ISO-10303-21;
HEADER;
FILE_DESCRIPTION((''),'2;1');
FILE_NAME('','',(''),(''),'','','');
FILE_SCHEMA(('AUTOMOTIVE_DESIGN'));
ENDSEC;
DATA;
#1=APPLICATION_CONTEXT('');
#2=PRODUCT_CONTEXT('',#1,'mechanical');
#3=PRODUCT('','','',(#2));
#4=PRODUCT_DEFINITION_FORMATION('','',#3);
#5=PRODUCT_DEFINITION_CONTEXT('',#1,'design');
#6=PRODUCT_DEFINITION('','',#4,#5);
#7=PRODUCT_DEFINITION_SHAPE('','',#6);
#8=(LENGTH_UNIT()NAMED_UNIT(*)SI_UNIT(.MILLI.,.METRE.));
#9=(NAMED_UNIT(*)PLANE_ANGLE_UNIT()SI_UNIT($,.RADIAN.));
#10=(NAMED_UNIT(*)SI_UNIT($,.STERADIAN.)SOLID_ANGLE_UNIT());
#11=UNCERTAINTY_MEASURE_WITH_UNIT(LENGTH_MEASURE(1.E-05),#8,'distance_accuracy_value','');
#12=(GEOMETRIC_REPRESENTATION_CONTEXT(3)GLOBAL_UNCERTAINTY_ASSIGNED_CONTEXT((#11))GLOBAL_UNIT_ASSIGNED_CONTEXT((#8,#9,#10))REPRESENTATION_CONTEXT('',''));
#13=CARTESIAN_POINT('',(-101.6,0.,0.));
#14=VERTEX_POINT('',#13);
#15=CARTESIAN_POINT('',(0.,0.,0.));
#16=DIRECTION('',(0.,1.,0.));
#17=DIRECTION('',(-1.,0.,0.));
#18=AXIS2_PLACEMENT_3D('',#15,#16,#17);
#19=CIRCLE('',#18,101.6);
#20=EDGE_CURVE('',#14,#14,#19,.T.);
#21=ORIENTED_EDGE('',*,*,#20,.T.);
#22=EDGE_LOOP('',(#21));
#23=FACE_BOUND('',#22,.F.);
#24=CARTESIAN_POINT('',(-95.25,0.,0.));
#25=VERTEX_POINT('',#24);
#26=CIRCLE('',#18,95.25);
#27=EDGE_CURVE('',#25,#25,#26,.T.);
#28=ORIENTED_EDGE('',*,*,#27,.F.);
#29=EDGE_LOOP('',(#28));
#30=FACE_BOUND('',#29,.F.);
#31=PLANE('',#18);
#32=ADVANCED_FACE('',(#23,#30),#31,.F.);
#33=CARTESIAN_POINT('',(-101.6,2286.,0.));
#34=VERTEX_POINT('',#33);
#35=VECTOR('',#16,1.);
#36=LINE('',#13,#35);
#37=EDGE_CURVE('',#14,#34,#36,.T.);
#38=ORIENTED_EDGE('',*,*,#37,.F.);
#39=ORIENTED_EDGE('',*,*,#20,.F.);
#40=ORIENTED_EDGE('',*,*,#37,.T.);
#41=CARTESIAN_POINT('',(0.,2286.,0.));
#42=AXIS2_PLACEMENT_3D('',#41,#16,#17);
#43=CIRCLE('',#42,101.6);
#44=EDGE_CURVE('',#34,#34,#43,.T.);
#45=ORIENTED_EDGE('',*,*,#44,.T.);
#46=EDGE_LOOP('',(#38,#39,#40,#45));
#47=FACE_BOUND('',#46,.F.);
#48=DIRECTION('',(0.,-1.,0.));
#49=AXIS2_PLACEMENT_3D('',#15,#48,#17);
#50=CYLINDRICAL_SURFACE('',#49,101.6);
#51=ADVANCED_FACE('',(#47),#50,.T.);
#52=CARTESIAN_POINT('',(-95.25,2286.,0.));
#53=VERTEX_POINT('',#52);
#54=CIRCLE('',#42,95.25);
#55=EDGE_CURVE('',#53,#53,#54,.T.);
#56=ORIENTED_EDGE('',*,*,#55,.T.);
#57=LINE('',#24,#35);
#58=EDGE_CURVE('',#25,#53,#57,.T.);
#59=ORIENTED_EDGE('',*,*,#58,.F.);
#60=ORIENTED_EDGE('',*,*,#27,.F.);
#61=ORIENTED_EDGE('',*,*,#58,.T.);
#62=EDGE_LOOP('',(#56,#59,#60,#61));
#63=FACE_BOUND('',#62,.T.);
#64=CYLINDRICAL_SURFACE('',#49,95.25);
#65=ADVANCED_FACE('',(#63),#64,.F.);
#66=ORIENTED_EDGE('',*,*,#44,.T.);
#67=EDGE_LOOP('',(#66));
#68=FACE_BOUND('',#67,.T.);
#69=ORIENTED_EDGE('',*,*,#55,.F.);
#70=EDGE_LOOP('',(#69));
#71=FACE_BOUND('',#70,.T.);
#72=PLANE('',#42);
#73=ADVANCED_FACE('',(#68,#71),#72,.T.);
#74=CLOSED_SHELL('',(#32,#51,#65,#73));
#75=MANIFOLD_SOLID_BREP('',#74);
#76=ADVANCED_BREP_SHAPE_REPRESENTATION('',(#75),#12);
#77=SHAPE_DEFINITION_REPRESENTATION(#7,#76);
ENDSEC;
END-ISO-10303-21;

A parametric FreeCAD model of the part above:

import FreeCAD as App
import Part
import Sketcher
from FreeCAD import Vector
Q = App.Units.Quantity

doc = App.newDocument("Part")
params = doc.addObject("Spreadsheet::Sheet", "Params")
for row, (alias, value) in enumerate([
    ("sketch1_diameter", "8 in"),
    ("sketch1_diameter2", "7.5 in"),
    ("pad1_length", "90 in"),
], start=1):
    params.set(f"A{row}", alias)
    params.set(f"B{row}", "=" + value)
    params.setAlias(f"B{row}", alias)

body = doc.addObject("PartDesign::Body", "Body")

sketch1 = doc.addObject("Sketcher::SketchObject", "Sketch")
body.addObject(sketch1)
sketch1.AttachmentSupport = (doc.XZ_Plane, [""])
sketch1.MapMode = "FlatFace"
sketch1.addGeometry(Part.Circle(Vector(0, 0, 0), Vector(0, 0, 1), 102), False)
sketch1.addGeometry(Part.Circle(Vector(0, 0, 0), Vector(0, 0, 1), 95), False)
sketch1.addConstraint(Sketcher.Constraint("Coincident", 0, 3, -1, 1))
sketch1.addConstraint(Sketcher.Constraint("Coincident", 1, 3, -1, 1))
sketch1.addConstraint(Sketcher.Constraint("Diameter", 0, Q("8 in")))
sketch1.addConstraint(Sketcher.Constraint("Diameter", 1, Q("7.5 in")))
sketch1.setExpression("Constraints[2]", "Params.sketch1_diameter")
sketch1.setExpression("Constraints[3]", "Params.sketch1_diameter2")
pad1 = doc.addObject("PartDesign::Pad", "Pad")
body.addObject(pad1)
pad1.Profile = sketch1
pad1.setExpression("Length", "Params.pad1_length")
pad1.Reversed = True

doc.recompute()
